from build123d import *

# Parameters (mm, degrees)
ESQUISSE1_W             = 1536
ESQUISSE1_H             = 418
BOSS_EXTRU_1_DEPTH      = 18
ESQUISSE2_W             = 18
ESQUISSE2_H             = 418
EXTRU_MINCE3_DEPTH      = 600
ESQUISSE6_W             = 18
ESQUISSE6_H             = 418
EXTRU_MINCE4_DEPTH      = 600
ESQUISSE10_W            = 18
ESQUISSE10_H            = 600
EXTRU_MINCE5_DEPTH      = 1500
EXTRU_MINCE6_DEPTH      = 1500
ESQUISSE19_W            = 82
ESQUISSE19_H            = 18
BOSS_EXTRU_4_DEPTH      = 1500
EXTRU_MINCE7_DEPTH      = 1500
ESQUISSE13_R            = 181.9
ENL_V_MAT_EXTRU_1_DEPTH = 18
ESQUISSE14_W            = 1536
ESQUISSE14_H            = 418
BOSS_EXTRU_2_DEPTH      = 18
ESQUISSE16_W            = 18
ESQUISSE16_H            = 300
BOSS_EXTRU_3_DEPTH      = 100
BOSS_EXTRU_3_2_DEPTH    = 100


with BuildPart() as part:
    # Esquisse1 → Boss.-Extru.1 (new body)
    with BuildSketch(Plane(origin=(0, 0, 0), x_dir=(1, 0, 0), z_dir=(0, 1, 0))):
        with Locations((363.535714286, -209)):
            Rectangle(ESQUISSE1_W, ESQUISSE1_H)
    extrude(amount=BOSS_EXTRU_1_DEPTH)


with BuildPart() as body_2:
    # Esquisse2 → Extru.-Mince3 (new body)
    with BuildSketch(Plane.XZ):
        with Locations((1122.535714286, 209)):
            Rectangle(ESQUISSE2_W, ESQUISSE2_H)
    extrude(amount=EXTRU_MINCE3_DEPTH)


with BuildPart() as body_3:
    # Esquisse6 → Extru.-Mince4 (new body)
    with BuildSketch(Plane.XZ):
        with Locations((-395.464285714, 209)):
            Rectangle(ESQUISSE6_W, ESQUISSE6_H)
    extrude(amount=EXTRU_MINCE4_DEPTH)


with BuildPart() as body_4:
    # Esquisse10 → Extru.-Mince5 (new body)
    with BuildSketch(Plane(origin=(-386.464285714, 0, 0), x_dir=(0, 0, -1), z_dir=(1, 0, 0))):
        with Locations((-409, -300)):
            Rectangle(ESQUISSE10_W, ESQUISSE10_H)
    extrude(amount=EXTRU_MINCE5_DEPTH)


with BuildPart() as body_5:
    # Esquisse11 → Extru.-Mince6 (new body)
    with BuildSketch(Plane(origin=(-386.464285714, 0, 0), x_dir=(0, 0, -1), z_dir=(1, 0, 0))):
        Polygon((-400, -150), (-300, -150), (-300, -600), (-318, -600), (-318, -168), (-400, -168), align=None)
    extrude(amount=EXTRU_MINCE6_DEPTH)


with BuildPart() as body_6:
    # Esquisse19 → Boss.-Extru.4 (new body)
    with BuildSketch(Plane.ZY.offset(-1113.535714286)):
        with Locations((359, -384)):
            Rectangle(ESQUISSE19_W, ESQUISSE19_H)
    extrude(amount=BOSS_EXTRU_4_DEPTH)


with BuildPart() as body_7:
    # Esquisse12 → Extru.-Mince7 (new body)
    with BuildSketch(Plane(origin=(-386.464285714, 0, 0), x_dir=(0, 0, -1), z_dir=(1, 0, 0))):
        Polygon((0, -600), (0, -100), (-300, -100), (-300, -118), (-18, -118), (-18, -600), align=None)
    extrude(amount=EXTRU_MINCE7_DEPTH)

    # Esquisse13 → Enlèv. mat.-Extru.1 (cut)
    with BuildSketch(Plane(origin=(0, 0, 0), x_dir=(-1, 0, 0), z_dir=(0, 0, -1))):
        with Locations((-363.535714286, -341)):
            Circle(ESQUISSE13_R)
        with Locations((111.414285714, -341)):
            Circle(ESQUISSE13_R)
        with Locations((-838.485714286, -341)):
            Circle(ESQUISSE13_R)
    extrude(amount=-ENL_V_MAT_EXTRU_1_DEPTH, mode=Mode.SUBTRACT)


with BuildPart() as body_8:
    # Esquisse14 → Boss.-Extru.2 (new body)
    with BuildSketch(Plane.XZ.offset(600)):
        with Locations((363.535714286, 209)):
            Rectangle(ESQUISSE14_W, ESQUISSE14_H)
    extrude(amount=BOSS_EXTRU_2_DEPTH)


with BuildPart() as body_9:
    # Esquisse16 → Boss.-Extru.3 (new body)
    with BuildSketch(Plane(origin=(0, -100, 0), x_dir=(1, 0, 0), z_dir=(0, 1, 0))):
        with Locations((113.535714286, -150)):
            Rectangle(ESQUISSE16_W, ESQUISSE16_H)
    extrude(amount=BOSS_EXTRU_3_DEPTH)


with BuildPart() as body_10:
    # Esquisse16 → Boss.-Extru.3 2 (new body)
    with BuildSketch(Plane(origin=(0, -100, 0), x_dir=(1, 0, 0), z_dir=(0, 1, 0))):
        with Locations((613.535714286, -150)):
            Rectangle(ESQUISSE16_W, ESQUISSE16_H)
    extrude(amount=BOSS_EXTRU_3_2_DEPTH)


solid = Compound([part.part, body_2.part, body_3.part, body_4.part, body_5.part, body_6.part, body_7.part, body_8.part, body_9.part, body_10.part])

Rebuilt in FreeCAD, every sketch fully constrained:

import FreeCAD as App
import Part
import Sketcher
Q = App.Units.Quantity

doc = App.newDocument("Part")
body = doc.addObject("PartDesign::Body", "Body")

# Sketch on XZ plane
sketch1 = body.newObject("Sketcher::SketchObject", "Sketch")
sketch1.AttachmentSupport = (doc.getObject("XZ_Plane"), [""])
sketch1.MapMode = "FlatFace"
sketch1.addGeometry([
    Part.LineSegment(App.Vector(-404.464286, 0, 0), App.Vector(-404.464286, 418, 0)),
    Part.LineSegment(App.Vector(-404.464286, 418, 0), App.Vector(1131.535714, 418, 0)),
    Part.LineSegment(App.Vector(1131.535714, 418, 0), App.Vector(1131.535714, 0, 0)),
    Part.LineSegment(App.Vector(1131.535714, 0, 0), App.Vector(-404.464286, 0, 0)),
], False)
sketch1.addConstraint([
    Sketcher.Constraint("Coincident", 0, 2, 1, 1),
    Sketcher.Constraint("Coincident", 1, 2, 2, 1),
    Sketcher.Constraint("Coincident", 2, 2, 3, 1),
    Sketcher.Constraint("Coincident", 3, 2, 0, 1),
    Sketcher.Constraint("Vertical", 0),
    Sketcher.Constraint("Horizontal", 1),
    Sketcher.Constraint("Vertical", 2),
    Sketcher.Constraint("Horizontal", 3),
    Sketcher.Constraint("PointOnObject", 2, 2, -1),
    Sketcher.Constraint("DistanceX", 1, 1, 1, 2, Q("1536 mm")),
    Sketcher.Constraint("DistanceY", 0, 1, 0, 2, Q("418 mm")),
    Sketcher.Constraint("DistanceX", 0, 2, -1, 1, Q("404.464286 mm")),
])
pad1 = body.newObject("PartDesign::Pad", "Pad")
pad1.Profile = sketch1
pad1.Length = 18
pad1.Reversed = True
body2 = doc.addObject("PartDesign::Body", "Body001")

# Sketch on XZ plane
sketch2 = body2.newObject("Sketcher::SketchObject", "Sketch001")
sketch2.AttachmentSupport = (doc.getObject("XZ_Plane001"), [""])
sketch2.MapMode = "FlatFace"
sketch2.addGeometry([
    Part.LineSegment(App.Vector(1113.535714, 418, 0), App.Vector(1113.535714, 0, 0)),
    Part.LineSegment(App.Vector(1113.535714, 0, 0), App.Vector(1131.535714, 0, 0)),
    Part.LineSegment(App.Vector(1131.535714, 0, 0), App.Vector(1131.535714, 418, 0)),
    Part.LineSegment(App.Vector(1131.535714, 418, 0), App.Vector(1113.535714, 418, 0)),
], False)
sketch2.addConstraint([
    Sketcher.Constraint("Coincident", 0, 2, 1, 1),
    Sketcher.Constraint("Coincident", 1, 2, 2, 1),
    Sketcher.Constraint("Coincident", 2, 2, 3, 1),
    Sketcher.Constraint("Coincident", 3, 2, 0, 1),
    Sketcher.Constraint("Vertical", 0),
    Sketcher.Constraint("Horizontal", 1),
    Sketcher.Constraint("Vertical", 2),
    Sketcher.Constraint("Horizontal", 3),
    Sketcher.Constraint("PointOnObject", 0, 2, -1),
    Sketcher.Constraint("DistanceX", 1, 1, 1, 2, Q("18 mm")),
    Sketcher.Constraint("DistanceY", 0, 2, 0, 1, Q("418 mm")),
    Sketcher.Constraint("DistanceX", -1, 1, 0, 2, Q("1113.535714 mm")),
])
pad2 = body2.newObject("PartDesign::Pad", "Pad001")
pad2.Profile = sketch2
pad2.Length = 600
body3 = doc.addObject("PartDesign::Body", "Body002")

# Sketch on XZ plane
sketch3 = body3.newObject("Sketcher::SketchObject", "Sketch002")
sketch3.AttachmentSupport = (doc.getObject("XZ_Plane002"), [""])
sketch3.MapMode = "FlatFace"
sketch3.addGeometry([
    Part.LineSegment(App.Vector(-404.464286, 418, 0), App.Vector(-404.464286, 0, 0)),
    Part.LineSegment(App.Vector(-404.464286, 0, 0), App.Vector(-386.464286, 0, 0)),
    Part.LineSegment(App.Vector(-386.464286, 0, 0), App.Vector(-386.464286, 418, 0)),
    Part.LineSegment(App.Vector(-386.464286, 418, 0), App.Vector(-404.464286, 418, 0)),
], False)
sketch3.addConstraint([
    Sketcher.Constraint("Coincident", 0, 2, 1, 1),
    Sketcher.Constraint("Coincident", 1, 2, 2, 1),
    Sketcher.Constraint("Coincident", 2, 2, 3, 1),
    Sketcher.Constraint("Coincident", 3, 2, 0, 1),
    Sketcher.Constraint("Vertical", 0),
    Sketcher.Constraint("Horizontal", 1),
    Sketcher.Constraint("Vertical", 2),
    Sketcher.Constraint("Horizontal", 3),
    Sketcher.Constraint("PointOnObject", 0, 2, -1),
    Sketcher.Constraint("DistanceX", 1, 1, 1, 2, Q("18 mm")),
    Sketcher.Constraint("DistanceY", 0, 2, 0, 1, Q("418 mm")),
    Sketcher.Constraint("DistanceX", 0, 2, -1, 1, Q("404.464286 mm")),
])
pad3 = body3.newObject("PartDesign::Pad", "Pad002")
pad3.Profile = sketch3
pad3.Length = 600
body4 = doc.addObject("PartDesign::Body", "Body003")

# Sketch on YZ plane
sketch4 = body4.newObject("Sketcher::SketchObject", "Sketch003")
sketch4.AttachmentSupport = (doc.getObject("YZ_Plane003"), [""])
sketch4.MapMode = "FlatFace"
sketch4.AttachmentOffset = App.Placement(App.Vector(0, 0, -386.464286), App.Rotation())
sketch4.addGeometry([
    Part.LineSegment(App.Vector(0, 418, 0), App.Vector(-600, 418, 0)),
    Part.LineSegment(App.Vector(-600, 418, 0), App.Vector(-600, 400, 0)),
    Part.LineSegment(App.Vector(-600, 400, 0), App.Vector(0, 400, 0)),
    Part.LineSegment(App.Vector(0, 400, 0), App.Vector(0, 418, 0)),
], False)
sketch4.addConstraint([
    Sketcher.Constraint("Coincident", 0, 2, 1, 1),
    Sketcher.Constraint("Coincident", 1, 2, 2, 1),
    Sketcher.Constraint("Coincident", 2, 2, 3, 1),
    Sketcher.Constraint("Coincident", 3, 2, 0, 1),
    Sketcher.Constraint("Horizontal", 0),
    Sketcher.Constraint("Vertical", 1),
    Sketcher.Constraint("Horizontal", 2),
    Sketcher.Constraint("Vertical", 3),
    Sketcher.Constraint("PointOnObject", 2, 2, -2),
    Sketcher.Constraint("DistanceX", 0, 2, 0, 1, Q("600 mm")),
    Sketcher.Constraint("DistanceY", 1, 2, 1, 1, Q("18 mm")),
    Sketcher.Constraint("DistanceY", -1, 1, 0, 2, Q("418 mm")),
])
pad4 = body4.newObject("PartDesign::Pad", "Pad003")
pad4.Profile = sketch4
pad4.Length = 1500
body5 = doc.addObject("PartDesign::Body", "Body004")

# Sketch on YZ plane
sketch5 = body5.newObject("Sketcher::SketchObject", "Sketch004")
sketch5.AttachmentSupport = (doc.getObject("YZ_Plane004"), [""])
sketch5.MapMode = "FlatFace"
sketch5.AttachmentOffset = App.Placement(App.Vector(0, 0, -386.464286), App.Rotation())
sketch5.addGeometry([
    Part.LineSegment(App.Vector(-150, 300, 0), App.Vector(-150, 400, 0)),  # 0
    Part.LineSegment(App.Vector(-150, 400, 0), App.Vector(-168, 400, 0)),  # 1
    Part.LineSegment(App.Vector(-168, 400, 0), App.Vector(-168, 318, 0)),  # 2
    Part.LineSegment(App.Vector(-168, 318, 0), App.Vector(-600, 318, 0)),  # 3
    Part.LineSegment(App.Vector(-600, 318, 0), App.Vector(-600, 300, 0)),  # 4
    Part.LineSegment(App.Vector(-600, 300, 0), App.Vector(-150, 300, 0)),  # 5
], False)
sketch5.addConstraint([
    Sketcher.Constraint("Coincident", 0, 2, 1, 1),
    Sketcher.Constraint("Coincident", 1, 2, 2, 1),
    Sketcher.Constraint("Coincident", 2, 2, 3, 1),
    Sketcher.Constraint("Coincident", 3, 2, 4, 1),
    Sketcher.Constraint("Coincident", 4, 2, 5, 1),
    Sketcher.Constraint("Coincident", 5, 2, 0, 1),
    Sketcher.Constraint("Vertical", 0),
    Sketcher.Constraint("Horizontal", 1),
    Sketcher.Constraint("Vertical", 2),
    Sketcher.Constraint("Horizontal", 3),
    Sketcher.Constraint("Vertical", 4),
    Sketcher.Constraint("Horizontal", 5),
    Sketcher.Constraint("Equal", 1, 4),
    Sketcher.Constraint("DistanceX", 1, 2, 1, 1, Q("18 mm")),
    Sketcher.Constraint("DistanceX", 3, 2, 3, 1, Q("432 mm")),
    Sketcher.Constraint("DistanceY", 0, 1, 0, 2, Q("100 mm")),
    Sketcher.Constraint("DistanceX", 0, 2, -1, 1, Q("150 mm")),
    Sketcher.Constraint("DistanceY", -1, 1, 0, 2, Q("400 mm")),
])
pad5 = body5.newObject("PartDesign::Pad", "Pad004")
pad5.Profile = sketch5
pad5.Length = 1500
body6 = doc.addObject("PartDesign::Body", "Body005")

# Sketch on YZ plane
sketch6 = body6.newObject("Sketcher::SketchObject", "Sketch005")
sketch6.AttachmentSupport = (doc.getObject("YZ_Plane005"), [""])
sketch6.MapMode = "FlatFace"
sketch6.AttachmentOffset = App.Placement(App.Vector(0, 0, 1113.535714), App.Rotation())
sketch6.addGeometry([
    Part.LineSegment(App.Vector(-375, 318, 0), App.Vector(-393, 318, 0)),
    Part.LineSegment(App.Vector(-393, 318, 0), App.Vector(-393, 400, 0)),
    Part.LineSegment(App.Vector(-393, 400, 0), App.Vector(-375, 400, 0)),
    Part.LineSegment(App.Vector(-375, 400, 0), App.Vector(-375, 318, 0)),
], False)
sketch6.addConstraint([
    Sketcher.Constraint("Coincident", 0, 2, 1, 1),
    Sketcher.Constraint("Coincident", 1, 2, 2, 1),
    Sketcher.Constraint("Coincident", 2, 2, 3, 1),
    Sketcher.Constraint("Coincident", 3, 2, 0, 1),
    Sketcher.Constraint("Horizontal", 0),
    Sketcher.Constraint("Vertical", 1),
    Sketcher.Constraint("Horizontal", 2),
    Sketcher.Constraint("Vertical", 3),
    Sketcher.Constraint("DistanceX", 0, 2, 0, 1, Q("18 mm")),
    Sketcher.Constraint("DistanceY", 1, 1, 1, 2, Q("82 mm")),
    Sketcher.Constraint("DistanceX", 0, 2, -1, 1, Q("393 mm")),
    Sketcher.Constraint("DistanceY", -1, 1, 0, 2, Q("318 mm")),
])
pad6 = body6.newObject("PartDesign::Pad", "Pad005")
pad6.Profile = sketch6
pad6.Length = 1500
pad6.Reversed = True
body7 = doc.addObject("PartDesign::Body", "Body006")

# Sketch on YZ plane
sketch7 = body7.newObject("Sketcher::SketchObject", "Sketch006")
sketch7.AttachmentSupport = (doc.getObject("YZ_Plane006"), [""])
sketch7.MapMode = "FlatFace"
sketch7.AttachmentOffset = App.Placement(App.Vector(0, 0, -386.464286), App.Rotation())
sketch7.addGeometry([
    Part.LineSegment(App.Vector(-600, 0, 0), App.Vector(-100, 0, 0)),  # 0
    Part.LineSegment(App.Vector(-100, 0, 0), App.Vector(-100, 300, 0)),  # 1
    Part.LineSegment(App.Vector(-100, 300, 0), App.Vector(-118, 300, 0)),  # 2
    Part.LineSegment(App.Vector(-118, 300, 0), App.Vector(-118, 18, 0)),  # 3
    Part.LineSegment(App.Vector(-118, 18, 0), App.Vector(-600, 18, 0)),  # 4
    Part.LineSegment(App.Vector(-600, 18, 0), App.Vector(-600, 0, 0)),  # 5
], False)
sketch7.addConstraint([
    Sketcher.Constraint("Coincident", 0, 2, 1, 1),
    Sketcher.Constraint("Coincident", 1, 2, 2, 1),
    Sketcher.Constraint("Coincident", 2, 2, 3, 1),
    Sketcher.Constraint("Coincident", 3, 2, 4, 1),
    Sketcher.Constraint("Coincident", 4, 2, 5, 1),
    Sketcher.Constraint("Coincident", 5, 2, 0, 1),
    Sketcher.Constraint("Horizontal", 0),
    Sketcher.Constraint("Vertical", 1),
    Sketcher.Constraint("Horizontal", 2),
    Sketcher.Constraint("Vertical", 3),
    Sketcher.Constraint("Horizontal", 4),
    Sketcher.Constraint("Vertical", 5),
    Sketcher.Constraint("PointOnObject", 0, 2, -1),
    Sketcher.Constraint("Equal", 2, 5),
    Sketcher.Constraint("DistanceX", 0, 1, 0, 2, Q("500 mm")),
    Sketcher.Constraint("DistanceX", 2, 2, 2, 1, Q("18 mm")),
    Sketcher.Constraint("DistanceY", 1, 1, 1, 2, Q("300 mm")),
    Sketcher.Constraint("DistanceX", 0, 2, -1, 1, Q("100 mm")),
])
pad7 = body7.newObject("PartDesign::Pad", "Pad006")
pad7.Profile = sketch7
pad7.Length = 1500

# Sketch on XY plane
sketch8 = body7.newObject("Sketcher::SketchObject", "Sketch007")
sketch8.AttachmentSupport = (doc.getObject("XY_Plane006"), [""])
sketch8.MapMode = "FlatFace"
sketch8.addGeometry([
    Part.Circle(App.Vector(363.535714, -341, 0), App.Vector(0, 0, 1), 181.9),
    Part.Circle(App.Vector(-111.414286, -341, 0), App.Vector(0, 0, 1), 181.9),
    Part.Circle(App.Vector(838.485714, -341, 0), App.Vector(0, 0, 1), 181.9),
], False)
sketch8.addConstraint([
    Sketcher.Constraint("Equal", 0, 1),
    Sketcher.Constraint("Equal", 1, 2),
    Sketcher.Constraint("Horizontal", 0, 3, 1, 3),
    Sketcher.Constraint("Horizontal", 1, 3, 2, 3),
    Sketcher.Constraint("Diameter", 0, Q("363.8 mm")),
    Sketcher.Constraint("DistanceY", 0, 3, -1, 1, Q("341 mm")),
    Sketcher.Constraint("DistanceX", 1, 3, 2, 3, Q("949.9 mm")),
    Sketcher.Constraint("DistanceX", 1, 3, 0, 3, Q("474.95 mm")),
    Sketcher.Constraint("DistanceX", -1, 1, 0, 3, Q("363.535714 mm")),
])
pocket1 = body7.newObject("PartDesign::Pocket", "Pocket")
pocket1.Profile = sketch8
pocket1.Length = 18
pocket1.Reversed = True
body8 = doc.addObject("PartDesign::Body", "Body007")

# Sketch on XZ plane
sketch9 = body8.newObject("Sketcher::SketchObject", "Sketch008")
sketch9.AttachmentSupport = (doc.getObject("XZ_Plane007"), [""])
sketch9.MapMode = "FlatFace"
sketch9.AttachmentOffset = App.Placement(App.Vector(0, 0, 600), App.Rotation())
sketch9.addGeometry([
    Part.LineSegment(App.Vector(-404.464286, 418, 0), App.Vector(-404.464286, 0, 0)),
    Part.LineSegment(App.Vector(-404.464286, 0, 0), App.Vector(1131.535714, 0, 0)),
    Part.LineSegment(App.Vector(1131.535714, 0, 0), App.Vector(1131.535714, 418, 0)),
    Part.LineSegment(App.Vector(1131.535714, 418, 0), App.Vector(-404.464286, 418, 0)),
], False)
sketch9.addConstraint([
    Sketcher.Constraint("Coincident", 0, 2, 1, 1),
    Sketcher.Constraint("Coincident", 1, 2, 2, 1),
    Sketcher.Constraint("Coincident", 2, 2, 3, 1),
    Sketcher.Constraint("Coincident", 3, 2, 0, 1),
    Sketcher.Constraint("Vertical", 0),
    Sketcher.Constraint("Horizontal", 1),
    Sketcher.Constraint("Vertical", 2),
    Sketcher.Constraint("Horizontal", 3),
    Sketcher.Constraint("PointOnObject", 0, 2, -1),
    Sketcher.Constraint("DistanceX", 1, 1, 1, 2, Q("1536 mm")),
    Sketcher.Constraint("DistanceY", 0, 2, 0, 1, Q("418 mm")),
    Sketcher.Constraint("DistanceX", 0, 2, -1, 1, Q("404.464286 mm")),
])
pad8 = body8.newObject("PartDesign::Pad", "Pad007")
pad8.Profile = sketch9
pad8.Length = 18
body9 = doc.addObject("PartDesign::Body", "Body008")

# Sketch on XZ plane
sketch10 = body9.newObject("Sketcher::SketchObject", "Sketch009")
sketch10.AttachmentSupport = (doc.getObject("XZ_Plane008"), [""])
sketch10.MapMode = "FlatFace"
sketch10.AttachmentOffset = App.Placement(App.Vector(0, 0, 100), App.Rotation())
sketch10.addGeometry([
    Part.LineSegment(App.Vector(104.535714, 0, 0), App.Vector(104.535714, 300, 0)),
    Part.LineSegment(App.Vector(104.535714, 300, 0), App.Vector(122.535714, 300, 0)),
    Part.LineSegment(App.Vector(122.535714, 300, 0), App.Vector(122.535714, 0, 0)),
    Part.LineSegment(App.Vector(122.535714, 0, 0), App.Vector(104.535714, 0, 0)),
], False)
sketch10.addConstraint([
    Sketcher.Constraint("Coincident", 0, 2, 1, 1),
    Sketcher.Constraint("Coincident", 1, 2, 2, 1),
    Sketcher.Constraint("Coincident", 2, 2, 3, 1),
    Sketcher.Constraint("Coincident", 3, 2, 0, 1),
    Sketcher.Constraint("Vertical", 0),
    Sketcher.Constraint("Horizontal", 1),
    Sketcher.Constraint("Vertical", 2),
    Sketcher.Constraint("Horizontal", 3),
    Sketcher.Constraint("PointOnObject", 2, 2, -1),
    Sketcher.Constraint("DistanceX", 1, 1, 1, 2, Q("18 mm")),
    Sketcher.Constraint("DistanceY", 0, 1, 0, 2, Q("300 mm")),
    Sketcher.Constraint("DistanceX", -1, 1, 0, 2, Q("104.535714 mm")),
])
pad9 = body9.newObject("PartDesign::Pad", "Pad008")
pad9.Profile = sketch10
pad9.Length = 100
pad9.Reversed = True
body10 = doc.addObject("PartDesign::Body", "Body009")

# Sketch on XZ plane
sketch11 = body10.newObject("Sketcher::SketchObject", "Sketch010")
sketch11.AttachmentSupport = (doc.getObject("XZ_Plane009"), [""])
sketch11.MapMode = "FlatFace"
sketch11.AttachmentOffset = App.Placement(App.Vector(0, 0, 100), App.Rotation())
sketch11.addGeometry([
    Part.LineSegment(App.Vector(604.535714, 0, 0), App.Vector(604.535714, 300, 0)),
    Part.LineSegment(App.Vector(604.535714, 300, 0), App.Vector(622.535714, 300, 0)),
    Part.LineSegment(App.Vector(622.535714, 300, 0), App.Vector(622.535714, 0, 0)),
    Part.LineSegment(App.Vector(622.535714, 0, 0), App.Vector(604.535714, 0, 0)),
], False)
sketch11.addConstraint([
    Sketcher.Constraint("Coincident", 0, 2, 1, 1),
    Sketcher.Constraint("Coincident", 1, 2, 2, 1),
    Sketcher.Constraint("Coincident", 2, 2, 3, 1),
    Sketcher.Constraint("Coincident", 3, 2, 0, 1),
    Sketcher.Constraint("Vertical", 0),
    Sketcher.Constraint("Horizontal", 1),
    Sketcher.Constraint("Vertical", 2),
    Sketcher.Constraint("Horizontal", 3),
    Sketcher.Constraint("PointOnObject", 2, 2, -1),
    Sketcher.Constraint("DistanceX", 1, 1, 1, 2, Q("18 mm")),
    Sketcher.Constraint("DistanceY", 0, 1, 0, 2, Q("300 mm")),
    Sketcher.Constraint("DistanceX", -1, 1, 0, 2, Q("604.535714 mm")),
])
pad10 = body10.newObject("PartDesign::Pad", "Pad009")
pad10.Profile = sketch11
pad10.Length = 100
pad10.Reversed = True

doc.recompute()
